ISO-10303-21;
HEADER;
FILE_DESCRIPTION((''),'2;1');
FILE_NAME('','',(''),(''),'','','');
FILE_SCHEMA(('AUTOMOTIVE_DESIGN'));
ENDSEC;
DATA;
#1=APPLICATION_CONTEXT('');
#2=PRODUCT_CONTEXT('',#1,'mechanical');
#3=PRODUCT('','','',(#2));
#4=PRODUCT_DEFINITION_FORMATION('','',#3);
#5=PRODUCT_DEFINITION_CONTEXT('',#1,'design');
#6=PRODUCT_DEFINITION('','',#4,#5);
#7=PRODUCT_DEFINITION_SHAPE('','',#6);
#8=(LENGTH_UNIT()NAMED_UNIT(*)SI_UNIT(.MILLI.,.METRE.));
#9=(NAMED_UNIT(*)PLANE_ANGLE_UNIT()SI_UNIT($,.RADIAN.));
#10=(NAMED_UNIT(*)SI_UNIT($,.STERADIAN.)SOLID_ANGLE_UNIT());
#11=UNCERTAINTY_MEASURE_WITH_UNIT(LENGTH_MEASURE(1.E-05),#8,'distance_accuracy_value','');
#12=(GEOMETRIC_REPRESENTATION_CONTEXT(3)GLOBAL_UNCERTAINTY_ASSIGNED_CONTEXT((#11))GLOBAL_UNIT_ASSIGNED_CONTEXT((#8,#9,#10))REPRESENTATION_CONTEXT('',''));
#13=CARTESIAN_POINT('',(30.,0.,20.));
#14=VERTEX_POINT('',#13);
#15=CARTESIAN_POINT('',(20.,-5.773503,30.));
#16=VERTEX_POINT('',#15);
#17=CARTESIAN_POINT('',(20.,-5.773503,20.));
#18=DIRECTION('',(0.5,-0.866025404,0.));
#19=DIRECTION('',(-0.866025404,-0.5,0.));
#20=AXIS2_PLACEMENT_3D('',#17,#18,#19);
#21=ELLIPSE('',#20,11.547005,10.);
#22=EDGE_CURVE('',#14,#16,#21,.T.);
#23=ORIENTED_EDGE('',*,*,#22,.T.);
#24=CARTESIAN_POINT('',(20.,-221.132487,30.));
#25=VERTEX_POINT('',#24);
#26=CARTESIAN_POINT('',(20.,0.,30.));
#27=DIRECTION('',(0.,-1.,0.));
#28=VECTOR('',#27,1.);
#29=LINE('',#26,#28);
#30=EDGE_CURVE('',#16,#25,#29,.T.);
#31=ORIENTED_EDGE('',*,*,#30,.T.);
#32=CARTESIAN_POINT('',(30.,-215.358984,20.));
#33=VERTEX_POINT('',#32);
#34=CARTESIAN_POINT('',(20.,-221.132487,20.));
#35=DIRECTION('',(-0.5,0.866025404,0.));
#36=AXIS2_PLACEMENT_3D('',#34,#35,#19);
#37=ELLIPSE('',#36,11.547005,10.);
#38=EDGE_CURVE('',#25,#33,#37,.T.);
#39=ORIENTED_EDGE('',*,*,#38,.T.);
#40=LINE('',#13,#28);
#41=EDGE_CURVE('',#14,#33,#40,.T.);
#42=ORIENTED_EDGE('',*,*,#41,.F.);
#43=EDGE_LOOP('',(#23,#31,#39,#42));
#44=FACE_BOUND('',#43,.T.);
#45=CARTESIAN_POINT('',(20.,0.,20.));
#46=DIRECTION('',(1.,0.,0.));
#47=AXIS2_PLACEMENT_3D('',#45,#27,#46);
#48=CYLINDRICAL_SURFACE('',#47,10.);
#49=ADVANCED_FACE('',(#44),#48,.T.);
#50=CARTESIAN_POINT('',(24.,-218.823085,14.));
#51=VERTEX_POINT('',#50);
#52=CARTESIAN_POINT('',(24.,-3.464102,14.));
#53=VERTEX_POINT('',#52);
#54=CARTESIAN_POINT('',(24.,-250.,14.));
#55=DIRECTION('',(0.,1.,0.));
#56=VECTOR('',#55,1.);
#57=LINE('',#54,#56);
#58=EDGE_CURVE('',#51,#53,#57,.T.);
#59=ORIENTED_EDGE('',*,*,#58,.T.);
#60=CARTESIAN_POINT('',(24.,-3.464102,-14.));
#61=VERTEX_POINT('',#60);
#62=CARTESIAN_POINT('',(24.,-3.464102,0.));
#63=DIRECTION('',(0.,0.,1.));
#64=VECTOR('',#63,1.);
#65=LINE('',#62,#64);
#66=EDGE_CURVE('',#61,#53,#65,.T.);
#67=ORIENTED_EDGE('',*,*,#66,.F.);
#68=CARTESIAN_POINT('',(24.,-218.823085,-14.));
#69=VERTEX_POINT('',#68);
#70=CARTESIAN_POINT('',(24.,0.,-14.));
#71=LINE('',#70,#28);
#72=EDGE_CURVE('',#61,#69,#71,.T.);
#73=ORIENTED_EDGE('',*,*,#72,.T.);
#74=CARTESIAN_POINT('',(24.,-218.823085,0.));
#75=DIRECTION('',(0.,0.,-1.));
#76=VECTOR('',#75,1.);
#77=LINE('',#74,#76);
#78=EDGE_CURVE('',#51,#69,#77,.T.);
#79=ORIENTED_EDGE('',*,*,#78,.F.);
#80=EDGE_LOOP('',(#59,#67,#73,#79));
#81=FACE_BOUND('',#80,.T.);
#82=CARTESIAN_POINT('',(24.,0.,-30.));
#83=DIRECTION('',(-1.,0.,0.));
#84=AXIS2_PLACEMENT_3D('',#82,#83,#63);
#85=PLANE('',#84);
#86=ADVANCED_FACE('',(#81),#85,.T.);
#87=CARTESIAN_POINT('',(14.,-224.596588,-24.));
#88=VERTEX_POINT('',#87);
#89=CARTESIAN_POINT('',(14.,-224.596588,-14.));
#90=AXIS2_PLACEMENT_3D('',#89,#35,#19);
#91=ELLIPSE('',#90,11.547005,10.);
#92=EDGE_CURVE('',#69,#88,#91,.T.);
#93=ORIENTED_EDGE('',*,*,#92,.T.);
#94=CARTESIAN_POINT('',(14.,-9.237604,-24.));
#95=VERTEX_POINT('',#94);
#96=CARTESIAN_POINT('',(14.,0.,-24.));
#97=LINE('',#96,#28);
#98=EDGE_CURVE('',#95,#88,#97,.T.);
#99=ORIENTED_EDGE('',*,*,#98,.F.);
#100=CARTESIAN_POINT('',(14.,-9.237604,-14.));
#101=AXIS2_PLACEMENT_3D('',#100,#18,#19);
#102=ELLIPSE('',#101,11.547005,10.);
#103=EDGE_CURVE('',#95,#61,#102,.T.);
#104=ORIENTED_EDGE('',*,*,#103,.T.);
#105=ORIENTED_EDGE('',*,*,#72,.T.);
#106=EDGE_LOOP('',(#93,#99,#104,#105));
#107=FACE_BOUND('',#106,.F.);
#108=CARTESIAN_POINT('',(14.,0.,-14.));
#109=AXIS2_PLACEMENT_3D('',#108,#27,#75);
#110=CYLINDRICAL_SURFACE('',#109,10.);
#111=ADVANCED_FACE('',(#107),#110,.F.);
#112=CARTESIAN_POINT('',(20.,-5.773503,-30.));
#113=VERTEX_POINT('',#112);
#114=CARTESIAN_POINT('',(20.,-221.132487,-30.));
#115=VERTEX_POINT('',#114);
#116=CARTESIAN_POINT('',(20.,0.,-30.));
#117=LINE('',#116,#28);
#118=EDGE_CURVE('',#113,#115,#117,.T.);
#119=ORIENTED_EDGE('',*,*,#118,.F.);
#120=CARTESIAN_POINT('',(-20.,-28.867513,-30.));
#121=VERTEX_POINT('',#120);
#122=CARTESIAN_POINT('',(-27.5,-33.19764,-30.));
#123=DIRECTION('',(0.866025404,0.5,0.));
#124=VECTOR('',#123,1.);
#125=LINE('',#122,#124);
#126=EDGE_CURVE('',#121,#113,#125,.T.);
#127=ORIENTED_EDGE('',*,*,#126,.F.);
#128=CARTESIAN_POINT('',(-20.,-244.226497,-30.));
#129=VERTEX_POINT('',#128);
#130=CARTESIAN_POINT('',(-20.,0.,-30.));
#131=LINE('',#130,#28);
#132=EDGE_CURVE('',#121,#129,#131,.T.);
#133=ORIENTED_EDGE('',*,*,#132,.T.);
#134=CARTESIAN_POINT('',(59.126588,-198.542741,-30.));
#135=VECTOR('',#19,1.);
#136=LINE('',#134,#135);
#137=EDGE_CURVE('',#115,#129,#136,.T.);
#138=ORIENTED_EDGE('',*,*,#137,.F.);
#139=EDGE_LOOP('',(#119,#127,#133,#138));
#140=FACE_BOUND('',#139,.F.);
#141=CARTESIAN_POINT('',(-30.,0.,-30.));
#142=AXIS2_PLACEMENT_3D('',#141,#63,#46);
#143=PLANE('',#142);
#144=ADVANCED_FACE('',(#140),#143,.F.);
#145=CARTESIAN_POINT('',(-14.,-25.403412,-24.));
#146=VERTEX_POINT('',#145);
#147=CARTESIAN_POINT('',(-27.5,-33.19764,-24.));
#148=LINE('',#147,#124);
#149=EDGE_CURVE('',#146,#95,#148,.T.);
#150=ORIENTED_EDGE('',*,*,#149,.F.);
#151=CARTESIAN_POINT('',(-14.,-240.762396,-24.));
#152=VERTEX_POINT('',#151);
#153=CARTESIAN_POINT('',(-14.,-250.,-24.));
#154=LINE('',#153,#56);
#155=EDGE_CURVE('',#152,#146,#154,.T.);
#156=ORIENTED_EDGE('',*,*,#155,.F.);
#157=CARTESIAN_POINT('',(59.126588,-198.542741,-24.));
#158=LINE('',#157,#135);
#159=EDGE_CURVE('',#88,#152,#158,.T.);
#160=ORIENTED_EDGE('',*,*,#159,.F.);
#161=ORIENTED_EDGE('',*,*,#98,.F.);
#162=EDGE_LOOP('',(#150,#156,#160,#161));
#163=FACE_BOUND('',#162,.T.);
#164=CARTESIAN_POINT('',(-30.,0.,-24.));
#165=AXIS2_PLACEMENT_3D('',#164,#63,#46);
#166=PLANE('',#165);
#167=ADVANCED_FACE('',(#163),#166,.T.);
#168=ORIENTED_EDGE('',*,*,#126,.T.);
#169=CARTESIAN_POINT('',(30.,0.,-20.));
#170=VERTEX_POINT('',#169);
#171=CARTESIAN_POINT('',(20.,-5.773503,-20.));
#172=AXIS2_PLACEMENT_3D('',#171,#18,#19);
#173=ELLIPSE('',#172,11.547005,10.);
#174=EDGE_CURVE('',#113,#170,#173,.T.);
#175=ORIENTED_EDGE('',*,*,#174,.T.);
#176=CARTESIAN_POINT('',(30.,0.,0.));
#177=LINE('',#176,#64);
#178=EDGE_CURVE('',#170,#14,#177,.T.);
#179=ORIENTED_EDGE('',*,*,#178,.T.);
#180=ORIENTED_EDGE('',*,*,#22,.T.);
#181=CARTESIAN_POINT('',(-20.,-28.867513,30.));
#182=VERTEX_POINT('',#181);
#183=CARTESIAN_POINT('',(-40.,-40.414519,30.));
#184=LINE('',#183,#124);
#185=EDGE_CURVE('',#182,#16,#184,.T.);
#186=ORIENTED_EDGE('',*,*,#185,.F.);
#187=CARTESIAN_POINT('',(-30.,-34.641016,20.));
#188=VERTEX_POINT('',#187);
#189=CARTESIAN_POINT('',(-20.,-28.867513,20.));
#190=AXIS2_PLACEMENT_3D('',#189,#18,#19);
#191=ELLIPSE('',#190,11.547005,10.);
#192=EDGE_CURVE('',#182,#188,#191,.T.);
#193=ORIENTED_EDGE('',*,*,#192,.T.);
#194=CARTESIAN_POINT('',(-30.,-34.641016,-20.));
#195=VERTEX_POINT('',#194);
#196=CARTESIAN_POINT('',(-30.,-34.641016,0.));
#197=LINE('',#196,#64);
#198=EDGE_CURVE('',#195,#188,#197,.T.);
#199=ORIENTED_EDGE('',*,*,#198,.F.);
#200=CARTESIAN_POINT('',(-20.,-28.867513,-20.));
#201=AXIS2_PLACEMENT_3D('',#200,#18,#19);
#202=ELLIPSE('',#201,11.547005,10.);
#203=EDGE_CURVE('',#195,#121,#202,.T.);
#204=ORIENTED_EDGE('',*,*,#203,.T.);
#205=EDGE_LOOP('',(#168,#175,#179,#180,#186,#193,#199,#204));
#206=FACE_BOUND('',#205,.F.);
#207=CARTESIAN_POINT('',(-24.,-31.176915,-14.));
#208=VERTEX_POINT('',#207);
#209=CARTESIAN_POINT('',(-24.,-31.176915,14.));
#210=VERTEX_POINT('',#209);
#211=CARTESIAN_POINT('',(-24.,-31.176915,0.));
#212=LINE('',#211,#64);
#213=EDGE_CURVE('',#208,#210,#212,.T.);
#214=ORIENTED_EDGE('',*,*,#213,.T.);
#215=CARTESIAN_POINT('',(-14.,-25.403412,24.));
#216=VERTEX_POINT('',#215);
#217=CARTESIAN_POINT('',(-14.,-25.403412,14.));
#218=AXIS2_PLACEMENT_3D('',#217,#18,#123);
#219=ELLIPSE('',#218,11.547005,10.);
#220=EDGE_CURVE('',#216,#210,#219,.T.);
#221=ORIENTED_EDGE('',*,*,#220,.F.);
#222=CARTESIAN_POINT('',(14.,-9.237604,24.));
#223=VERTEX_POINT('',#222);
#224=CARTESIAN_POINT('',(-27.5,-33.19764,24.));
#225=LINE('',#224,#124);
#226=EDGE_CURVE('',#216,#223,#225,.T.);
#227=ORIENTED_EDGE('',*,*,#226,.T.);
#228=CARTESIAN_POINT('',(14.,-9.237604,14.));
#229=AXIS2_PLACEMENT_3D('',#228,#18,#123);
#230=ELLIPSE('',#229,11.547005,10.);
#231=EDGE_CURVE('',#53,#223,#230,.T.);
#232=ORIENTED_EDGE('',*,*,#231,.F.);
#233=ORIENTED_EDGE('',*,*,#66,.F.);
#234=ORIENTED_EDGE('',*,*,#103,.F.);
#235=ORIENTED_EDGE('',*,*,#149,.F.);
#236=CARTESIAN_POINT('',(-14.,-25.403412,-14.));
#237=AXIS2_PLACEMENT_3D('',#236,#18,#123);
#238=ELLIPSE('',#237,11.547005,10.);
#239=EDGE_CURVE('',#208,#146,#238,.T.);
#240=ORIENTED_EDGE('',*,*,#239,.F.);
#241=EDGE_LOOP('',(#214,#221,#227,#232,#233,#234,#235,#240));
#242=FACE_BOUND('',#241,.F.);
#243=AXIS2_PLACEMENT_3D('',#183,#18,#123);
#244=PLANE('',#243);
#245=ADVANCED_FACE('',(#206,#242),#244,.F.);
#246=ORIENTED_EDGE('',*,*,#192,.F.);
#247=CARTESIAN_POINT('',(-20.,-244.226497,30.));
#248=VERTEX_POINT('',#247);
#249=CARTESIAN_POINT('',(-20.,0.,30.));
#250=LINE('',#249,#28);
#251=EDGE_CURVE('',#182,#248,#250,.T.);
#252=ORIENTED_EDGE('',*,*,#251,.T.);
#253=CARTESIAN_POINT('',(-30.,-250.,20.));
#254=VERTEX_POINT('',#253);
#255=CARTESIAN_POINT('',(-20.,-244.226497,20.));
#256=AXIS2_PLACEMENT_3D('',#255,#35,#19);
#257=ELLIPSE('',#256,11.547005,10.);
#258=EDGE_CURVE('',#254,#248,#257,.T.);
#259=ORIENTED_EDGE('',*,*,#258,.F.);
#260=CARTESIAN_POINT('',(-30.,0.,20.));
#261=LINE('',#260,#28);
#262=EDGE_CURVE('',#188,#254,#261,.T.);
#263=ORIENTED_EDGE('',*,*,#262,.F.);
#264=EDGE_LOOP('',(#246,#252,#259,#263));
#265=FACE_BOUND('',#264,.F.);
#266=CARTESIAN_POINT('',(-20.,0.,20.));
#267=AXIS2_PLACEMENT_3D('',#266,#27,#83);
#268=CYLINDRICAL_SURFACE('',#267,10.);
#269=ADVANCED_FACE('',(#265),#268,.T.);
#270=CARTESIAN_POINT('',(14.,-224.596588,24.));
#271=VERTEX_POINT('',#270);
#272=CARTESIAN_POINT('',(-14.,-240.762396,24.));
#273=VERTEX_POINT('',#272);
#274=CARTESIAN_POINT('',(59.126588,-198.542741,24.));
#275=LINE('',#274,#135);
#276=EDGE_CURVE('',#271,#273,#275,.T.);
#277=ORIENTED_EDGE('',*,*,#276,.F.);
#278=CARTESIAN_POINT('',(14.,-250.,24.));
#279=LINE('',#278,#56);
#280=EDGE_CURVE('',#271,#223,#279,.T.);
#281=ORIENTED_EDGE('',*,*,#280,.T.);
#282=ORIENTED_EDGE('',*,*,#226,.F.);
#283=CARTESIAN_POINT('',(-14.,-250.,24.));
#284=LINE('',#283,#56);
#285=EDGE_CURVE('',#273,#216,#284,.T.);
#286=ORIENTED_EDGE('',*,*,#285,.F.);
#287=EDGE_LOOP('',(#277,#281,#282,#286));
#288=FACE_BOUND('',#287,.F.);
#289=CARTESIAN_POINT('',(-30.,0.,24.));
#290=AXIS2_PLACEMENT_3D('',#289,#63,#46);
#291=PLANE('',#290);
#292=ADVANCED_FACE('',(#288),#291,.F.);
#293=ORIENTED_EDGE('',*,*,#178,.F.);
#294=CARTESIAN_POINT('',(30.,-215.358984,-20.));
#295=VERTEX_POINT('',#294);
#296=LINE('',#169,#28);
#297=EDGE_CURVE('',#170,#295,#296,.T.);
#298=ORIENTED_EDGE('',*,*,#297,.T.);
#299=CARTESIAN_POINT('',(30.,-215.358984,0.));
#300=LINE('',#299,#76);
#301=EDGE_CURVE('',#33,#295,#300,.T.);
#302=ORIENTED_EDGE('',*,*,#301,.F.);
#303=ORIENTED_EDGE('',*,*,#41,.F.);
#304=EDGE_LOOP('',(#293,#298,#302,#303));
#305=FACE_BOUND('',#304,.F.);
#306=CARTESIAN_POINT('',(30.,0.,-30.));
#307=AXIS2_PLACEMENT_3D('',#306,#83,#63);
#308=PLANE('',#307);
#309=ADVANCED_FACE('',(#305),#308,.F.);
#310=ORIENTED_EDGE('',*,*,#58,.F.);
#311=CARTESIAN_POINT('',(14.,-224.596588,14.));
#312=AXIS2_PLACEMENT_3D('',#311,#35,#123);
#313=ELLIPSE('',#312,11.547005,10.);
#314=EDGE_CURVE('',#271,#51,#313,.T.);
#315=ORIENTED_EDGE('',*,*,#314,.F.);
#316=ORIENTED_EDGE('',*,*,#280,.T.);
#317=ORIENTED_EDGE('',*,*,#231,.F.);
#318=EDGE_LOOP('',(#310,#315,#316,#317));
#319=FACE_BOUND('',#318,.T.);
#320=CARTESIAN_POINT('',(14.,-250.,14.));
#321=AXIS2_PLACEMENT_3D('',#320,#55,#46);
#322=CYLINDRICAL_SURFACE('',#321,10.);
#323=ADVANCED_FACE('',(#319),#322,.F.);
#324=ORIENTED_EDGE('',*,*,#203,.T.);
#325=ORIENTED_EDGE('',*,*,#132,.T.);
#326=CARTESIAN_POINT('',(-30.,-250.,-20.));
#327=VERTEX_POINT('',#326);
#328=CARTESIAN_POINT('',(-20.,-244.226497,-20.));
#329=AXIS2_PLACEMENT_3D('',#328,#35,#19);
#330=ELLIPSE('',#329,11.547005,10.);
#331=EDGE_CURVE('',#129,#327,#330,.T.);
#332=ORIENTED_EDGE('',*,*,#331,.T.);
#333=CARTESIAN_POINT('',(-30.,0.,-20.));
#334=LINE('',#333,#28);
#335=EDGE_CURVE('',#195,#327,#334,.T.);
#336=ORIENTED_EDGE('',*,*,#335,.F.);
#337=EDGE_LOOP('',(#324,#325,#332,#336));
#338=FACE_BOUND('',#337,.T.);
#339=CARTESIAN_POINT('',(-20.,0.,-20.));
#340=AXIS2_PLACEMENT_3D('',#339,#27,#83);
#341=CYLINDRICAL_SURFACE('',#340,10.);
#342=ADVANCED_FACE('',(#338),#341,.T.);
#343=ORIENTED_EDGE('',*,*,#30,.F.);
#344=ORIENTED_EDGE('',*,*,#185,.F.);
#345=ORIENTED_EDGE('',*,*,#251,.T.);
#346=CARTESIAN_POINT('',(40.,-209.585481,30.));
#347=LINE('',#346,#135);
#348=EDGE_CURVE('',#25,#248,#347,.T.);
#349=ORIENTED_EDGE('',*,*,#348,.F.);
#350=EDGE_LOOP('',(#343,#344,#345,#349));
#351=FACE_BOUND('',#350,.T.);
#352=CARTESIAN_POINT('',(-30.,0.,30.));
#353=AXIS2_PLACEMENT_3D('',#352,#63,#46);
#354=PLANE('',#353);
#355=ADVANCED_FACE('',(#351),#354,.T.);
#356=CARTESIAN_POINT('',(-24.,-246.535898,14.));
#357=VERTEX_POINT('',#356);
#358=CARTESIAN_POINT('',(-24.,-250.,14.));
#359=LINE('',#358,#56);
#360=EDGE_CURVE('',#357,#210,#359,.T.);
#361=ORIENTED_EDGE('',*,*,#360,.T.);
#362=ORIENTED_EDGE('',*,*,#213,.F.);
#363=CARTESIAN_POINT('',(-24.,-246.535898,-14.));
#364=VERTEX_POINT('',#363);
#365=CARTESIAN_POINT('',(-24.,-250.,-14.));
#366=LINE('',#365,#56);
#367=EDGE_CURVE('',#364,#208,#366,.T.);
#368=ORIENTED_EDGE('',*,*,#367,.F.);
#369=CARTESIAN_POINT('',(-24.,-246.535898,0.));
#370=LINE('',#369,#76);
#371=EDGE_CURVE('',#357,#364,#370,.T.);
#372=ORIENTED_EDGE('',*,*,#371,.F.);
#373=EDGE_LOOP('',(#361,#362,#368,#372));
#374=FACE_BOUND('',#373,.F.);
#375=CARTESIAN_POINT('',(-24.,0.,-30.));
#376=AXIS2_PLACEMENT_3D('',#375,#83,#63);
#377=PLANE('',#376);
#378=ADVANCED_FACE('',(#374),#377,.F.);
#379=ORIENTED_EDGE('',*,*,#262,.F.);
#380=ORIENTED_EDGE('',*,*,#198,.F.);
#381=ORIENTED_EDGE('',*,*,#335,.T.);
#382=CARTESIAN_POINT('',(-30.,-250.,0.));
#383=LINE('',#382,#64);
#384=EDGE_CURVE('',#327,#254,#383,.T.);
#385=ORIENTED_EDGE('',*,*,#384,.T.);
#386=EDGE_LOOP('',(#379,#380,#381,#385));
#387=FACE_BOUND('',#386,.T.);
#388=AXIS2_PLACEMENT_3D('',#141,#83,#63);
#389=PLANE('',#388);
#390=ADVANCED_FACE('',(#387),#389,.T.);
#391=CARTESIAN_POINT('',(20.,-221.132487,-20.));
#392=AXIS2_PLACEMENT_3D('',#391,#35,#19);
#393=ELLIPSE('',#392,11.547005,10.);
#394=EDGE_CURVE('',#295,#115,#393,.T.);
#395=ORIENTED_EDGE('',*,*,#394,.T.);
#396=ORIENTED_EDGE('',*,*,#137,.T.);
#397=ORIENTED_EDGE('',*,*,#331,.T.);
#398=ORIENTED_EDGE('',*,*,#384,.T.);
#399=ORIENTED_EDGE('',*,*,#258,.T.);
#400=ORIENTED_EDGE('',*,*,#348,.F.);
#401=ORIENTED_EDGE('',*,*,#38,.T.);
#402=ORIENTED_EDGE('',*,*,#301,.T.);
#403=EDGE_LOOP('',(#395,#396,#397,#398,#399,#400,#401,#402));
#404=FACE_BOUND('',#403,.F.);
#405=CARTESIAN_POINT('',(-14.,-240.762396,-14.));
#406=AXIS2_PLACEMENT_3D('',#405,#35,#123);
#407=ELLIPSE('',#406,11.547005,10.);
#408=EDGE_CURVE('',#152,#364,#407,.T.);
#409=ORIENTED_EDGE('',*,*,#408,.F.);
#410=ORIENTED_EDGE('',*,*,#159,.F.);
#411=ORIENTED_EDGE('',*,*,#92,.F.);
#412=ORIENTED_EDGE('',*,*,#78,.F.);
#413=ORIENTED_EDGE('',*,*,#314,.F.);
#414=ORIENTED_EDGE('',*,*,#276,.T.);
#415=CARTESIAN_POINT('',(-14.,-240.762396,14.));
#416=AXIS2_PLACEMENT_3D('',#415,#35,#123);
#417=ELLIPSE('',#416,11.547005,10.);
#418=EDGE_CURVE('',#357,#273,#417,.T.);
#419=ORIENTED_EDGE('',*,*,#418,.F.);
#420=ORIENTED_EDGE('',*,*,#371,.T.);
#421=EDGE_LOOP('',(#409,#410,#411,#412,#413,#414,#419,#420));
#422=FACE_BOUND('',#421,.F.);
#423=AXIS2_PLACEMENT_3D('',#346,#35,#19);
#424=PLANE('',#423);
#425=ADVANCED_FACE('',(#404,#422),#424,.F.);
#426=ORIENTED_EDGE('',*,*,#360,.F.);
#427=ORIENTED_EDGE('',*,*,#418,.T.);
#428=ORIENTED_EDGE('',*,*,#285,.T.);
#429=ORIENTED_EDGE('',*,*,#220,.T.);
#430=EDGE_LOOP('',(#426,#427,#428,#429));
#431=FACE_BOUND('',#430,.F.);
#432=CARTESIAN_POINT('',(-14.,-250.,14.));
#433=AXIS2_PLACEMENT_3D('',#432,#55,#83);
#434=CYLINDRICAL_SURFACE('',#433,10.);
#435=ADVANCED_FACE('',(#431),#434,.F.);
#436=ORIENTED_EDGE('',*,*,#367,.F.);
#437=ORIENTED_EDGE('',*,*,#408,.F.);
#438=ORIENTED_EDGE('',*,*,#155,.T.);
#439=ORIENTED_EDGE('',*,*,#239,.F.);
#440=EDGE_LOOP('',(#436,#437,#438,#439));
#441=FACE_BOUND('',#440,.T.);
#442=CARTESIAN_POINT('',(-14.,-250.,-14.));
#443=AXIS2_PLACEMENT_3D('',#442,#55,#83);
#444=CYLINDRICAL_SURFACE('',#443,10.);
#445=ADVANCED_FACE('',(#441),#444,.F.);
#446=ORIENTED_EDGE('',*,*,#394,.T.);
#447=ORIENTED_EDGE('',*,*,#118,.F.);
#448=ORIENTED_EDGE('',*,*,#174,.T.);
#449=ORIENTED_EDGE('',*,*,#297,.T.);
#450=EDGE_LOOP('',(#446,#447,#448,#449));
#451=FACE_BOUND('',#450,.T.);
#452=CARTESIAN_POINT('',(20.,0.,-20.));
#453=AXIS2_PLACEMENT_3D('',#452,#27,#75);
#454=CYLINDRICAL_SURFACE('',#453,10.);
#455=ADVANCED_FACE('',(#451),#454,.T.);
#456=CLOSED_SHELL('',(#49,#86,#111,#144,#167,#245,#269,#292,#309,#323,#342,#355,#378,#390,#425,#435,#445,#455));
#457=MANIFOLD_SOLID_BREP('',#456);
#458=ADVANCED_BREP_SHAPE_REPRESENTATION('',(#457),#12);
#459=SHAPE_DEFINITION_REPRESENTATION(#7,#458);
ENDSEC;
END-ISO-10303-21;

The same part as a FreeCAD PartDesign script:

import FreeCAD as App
import Part
import Sketcher
Q = App.Units.Quantity


def edges_at(feature, points):
    """Names of the edges that pass closest to the given points."""
    edges = feature.Shape.Edges
    near = lambda p: min(range(len(edges)), key=lambda i: edges[i].distToShape(Part.Vertex(*p))[0])
    return sorted({f"Edge{near(p) + 1}" for p in points})


def faces_at(feature, points):
    """Names of the faces that lie closest to the given points."""
    faces = feature.Shape.Faces
    near = lambda p: min(range(len(faces)), key=lambda i: faces[i].distToShape(Part.Vertex(*p))[0])
    return sorted({f"Face{near(p) + 1}" for p in points})


def add_polygon(sketch, points):
    """Adds a closed chain of lines whose ends are joined by coincident constraints."""
    first, n = sketch.GeometryCount, len(points)
    for a, b in zip(points, points[1:] + points[:1]):
        sketch.addGeometry(Part.LineSegment(App.Vector(*a, 0), App.Vector(*b, 0)), False)
    for i in range(n):
        sketch.addConstraint(Sketcher.Constraint("Coincident", first + i, 2, first + (i + 1) % n, 1))

doc = App.newDocument("Part")
body = doc.addObject("PartDesign::Body", "Body")

# Sketch on XZ plane
sketch1 = body.newObject("Sketcher::SketchObject", "Sketch")
sketch1.AttachmentSupport = (doc.getObject("XZ_Plane"), [""])
sketch1.MapMode = "FlatFace"
add_polygon(sketch1, [(-30, 30), (-30, -30), (30, -30), (30, 30)])  # lines 0-3
sketch1.addConstraint([
    Sketcher.Constraint("Vertical", 0),
    Sketcher.Constraint("Horizontal", 1),
    Sketcher.Constraint("Vertical", 2),
    Sketcher.Constraint("Horizontal", 3),
    Sketcher.Constraint("Symmetric", 0, 2, 2, 2, -1, 1),
    Sketcher.Constraint("Equal", 3, 0),
    Sketcher.Constraint("DistanceX", 1, 1, 1, 2, Q("60 mm")),
])
pad1 = body.newObject("PartDesign::Pad", "Pad")
pad1.Profile = sketch1
pad1.Length = 250
doc.recompute()

thickness = body.newObject("PartDesign::Thickness", "Thickness")
thickness.Base = (pad1, faces_at(pad1, [(0, -250, 0), (0, 0, 0)]))
thickness.Value = 6
thickness.Reversed = True
thickness.Join = "Arc"
doc.recompute()

fillet = body.newObject("PartDesign::Fillet", "Fillet")
fillet.Base = (thickness, edges_at(thickness, [
    (-30, -125, 30),
    (-24, -125, -24),
    (30, -125, 30),
    (30, -125, -30),
    (-24, -125, 24),
    (-30, -125, -30),
    (24, -125, 24),
    (24, -125, -24),
]))
fillet.Radius = 10

# Sketch on XY plane
sketch2 = body.newObject("Sketcher::SketchObject", "Sketch001")
sketch2.AttachmentSupport = (doc.getObject("XY_Plane"), [""])
sketch2.MapMode = "FlatFace"
sketch2.AttachmentOffset = App.Placement(App.Vector(0, 0, 30), App.Rotation())
add_polygon(sketch2, [(40, -256), (40, -210), (-40, -256)])  # lines 0-2
sketch2.addConstraint([
    Sketcher.Constraint("Vertical", 0),
    Sketcher.Constraint("Horizontal", 2),
    Sketcher.Constraint("DistanceX", 2, 1, 2, 2, Q("80 mm")),
    Sketcher.Constraint("Angle", 1, Q("-150 deg")),
    Sketcher.Constraint("DistanceX", -1, 1, 0, 2, Q("40 mm")),
    Sketcher.Constraint("DistanceY", 0, 2, -1, 1, Q("209.585481 mm")),
])
pocket1 = body.newObject("PartDesign::Pocket", "Pocket")
pocket1.Profile = sketch2
pocket1.Type = "ThroughAll"

# Sketch on XY plane
sketch3 = body.newObject("Sketcher::SketchObject", "Sketch002")
sketch3.AttachmentSupport = (doc.getObject("XY_Plane"), [""])
sketch3.MapMode = "FlatFace"
sketch3.AttachmentOffset = App.Placement(App.Vector(0, 0, 30), App.Rotation())
add_polygon(sketch3, [(-40, 6), (-40, -40), (40, 6)])  # lines 0-2
sketch3.addConstraint([
    Sketcher.Constraint("Vertical", 0),
    Sketcher.Constraint("Horizontal", 2),
    Sketcher.Constraint("DistanceX", 2, 2, 2, 1, Q("80 mm")),
    Sketcher.Constraint("Angle", 1, Q("30 deg")),
    Sketcher.Constraint("DistanceX", 0, 2, -1, 1, Q("40 mm")),
    Sketcher.Constraint("DistanceY", 0, 2, -1, 1, Q("40.414519 mm")),
])
pocket2 = body.newObject("PartDesign::Pocket", "Pocket001")
pocket2.Profile = sketch3
pocket2.Type = "ThroughAll"

doc.recompute()
